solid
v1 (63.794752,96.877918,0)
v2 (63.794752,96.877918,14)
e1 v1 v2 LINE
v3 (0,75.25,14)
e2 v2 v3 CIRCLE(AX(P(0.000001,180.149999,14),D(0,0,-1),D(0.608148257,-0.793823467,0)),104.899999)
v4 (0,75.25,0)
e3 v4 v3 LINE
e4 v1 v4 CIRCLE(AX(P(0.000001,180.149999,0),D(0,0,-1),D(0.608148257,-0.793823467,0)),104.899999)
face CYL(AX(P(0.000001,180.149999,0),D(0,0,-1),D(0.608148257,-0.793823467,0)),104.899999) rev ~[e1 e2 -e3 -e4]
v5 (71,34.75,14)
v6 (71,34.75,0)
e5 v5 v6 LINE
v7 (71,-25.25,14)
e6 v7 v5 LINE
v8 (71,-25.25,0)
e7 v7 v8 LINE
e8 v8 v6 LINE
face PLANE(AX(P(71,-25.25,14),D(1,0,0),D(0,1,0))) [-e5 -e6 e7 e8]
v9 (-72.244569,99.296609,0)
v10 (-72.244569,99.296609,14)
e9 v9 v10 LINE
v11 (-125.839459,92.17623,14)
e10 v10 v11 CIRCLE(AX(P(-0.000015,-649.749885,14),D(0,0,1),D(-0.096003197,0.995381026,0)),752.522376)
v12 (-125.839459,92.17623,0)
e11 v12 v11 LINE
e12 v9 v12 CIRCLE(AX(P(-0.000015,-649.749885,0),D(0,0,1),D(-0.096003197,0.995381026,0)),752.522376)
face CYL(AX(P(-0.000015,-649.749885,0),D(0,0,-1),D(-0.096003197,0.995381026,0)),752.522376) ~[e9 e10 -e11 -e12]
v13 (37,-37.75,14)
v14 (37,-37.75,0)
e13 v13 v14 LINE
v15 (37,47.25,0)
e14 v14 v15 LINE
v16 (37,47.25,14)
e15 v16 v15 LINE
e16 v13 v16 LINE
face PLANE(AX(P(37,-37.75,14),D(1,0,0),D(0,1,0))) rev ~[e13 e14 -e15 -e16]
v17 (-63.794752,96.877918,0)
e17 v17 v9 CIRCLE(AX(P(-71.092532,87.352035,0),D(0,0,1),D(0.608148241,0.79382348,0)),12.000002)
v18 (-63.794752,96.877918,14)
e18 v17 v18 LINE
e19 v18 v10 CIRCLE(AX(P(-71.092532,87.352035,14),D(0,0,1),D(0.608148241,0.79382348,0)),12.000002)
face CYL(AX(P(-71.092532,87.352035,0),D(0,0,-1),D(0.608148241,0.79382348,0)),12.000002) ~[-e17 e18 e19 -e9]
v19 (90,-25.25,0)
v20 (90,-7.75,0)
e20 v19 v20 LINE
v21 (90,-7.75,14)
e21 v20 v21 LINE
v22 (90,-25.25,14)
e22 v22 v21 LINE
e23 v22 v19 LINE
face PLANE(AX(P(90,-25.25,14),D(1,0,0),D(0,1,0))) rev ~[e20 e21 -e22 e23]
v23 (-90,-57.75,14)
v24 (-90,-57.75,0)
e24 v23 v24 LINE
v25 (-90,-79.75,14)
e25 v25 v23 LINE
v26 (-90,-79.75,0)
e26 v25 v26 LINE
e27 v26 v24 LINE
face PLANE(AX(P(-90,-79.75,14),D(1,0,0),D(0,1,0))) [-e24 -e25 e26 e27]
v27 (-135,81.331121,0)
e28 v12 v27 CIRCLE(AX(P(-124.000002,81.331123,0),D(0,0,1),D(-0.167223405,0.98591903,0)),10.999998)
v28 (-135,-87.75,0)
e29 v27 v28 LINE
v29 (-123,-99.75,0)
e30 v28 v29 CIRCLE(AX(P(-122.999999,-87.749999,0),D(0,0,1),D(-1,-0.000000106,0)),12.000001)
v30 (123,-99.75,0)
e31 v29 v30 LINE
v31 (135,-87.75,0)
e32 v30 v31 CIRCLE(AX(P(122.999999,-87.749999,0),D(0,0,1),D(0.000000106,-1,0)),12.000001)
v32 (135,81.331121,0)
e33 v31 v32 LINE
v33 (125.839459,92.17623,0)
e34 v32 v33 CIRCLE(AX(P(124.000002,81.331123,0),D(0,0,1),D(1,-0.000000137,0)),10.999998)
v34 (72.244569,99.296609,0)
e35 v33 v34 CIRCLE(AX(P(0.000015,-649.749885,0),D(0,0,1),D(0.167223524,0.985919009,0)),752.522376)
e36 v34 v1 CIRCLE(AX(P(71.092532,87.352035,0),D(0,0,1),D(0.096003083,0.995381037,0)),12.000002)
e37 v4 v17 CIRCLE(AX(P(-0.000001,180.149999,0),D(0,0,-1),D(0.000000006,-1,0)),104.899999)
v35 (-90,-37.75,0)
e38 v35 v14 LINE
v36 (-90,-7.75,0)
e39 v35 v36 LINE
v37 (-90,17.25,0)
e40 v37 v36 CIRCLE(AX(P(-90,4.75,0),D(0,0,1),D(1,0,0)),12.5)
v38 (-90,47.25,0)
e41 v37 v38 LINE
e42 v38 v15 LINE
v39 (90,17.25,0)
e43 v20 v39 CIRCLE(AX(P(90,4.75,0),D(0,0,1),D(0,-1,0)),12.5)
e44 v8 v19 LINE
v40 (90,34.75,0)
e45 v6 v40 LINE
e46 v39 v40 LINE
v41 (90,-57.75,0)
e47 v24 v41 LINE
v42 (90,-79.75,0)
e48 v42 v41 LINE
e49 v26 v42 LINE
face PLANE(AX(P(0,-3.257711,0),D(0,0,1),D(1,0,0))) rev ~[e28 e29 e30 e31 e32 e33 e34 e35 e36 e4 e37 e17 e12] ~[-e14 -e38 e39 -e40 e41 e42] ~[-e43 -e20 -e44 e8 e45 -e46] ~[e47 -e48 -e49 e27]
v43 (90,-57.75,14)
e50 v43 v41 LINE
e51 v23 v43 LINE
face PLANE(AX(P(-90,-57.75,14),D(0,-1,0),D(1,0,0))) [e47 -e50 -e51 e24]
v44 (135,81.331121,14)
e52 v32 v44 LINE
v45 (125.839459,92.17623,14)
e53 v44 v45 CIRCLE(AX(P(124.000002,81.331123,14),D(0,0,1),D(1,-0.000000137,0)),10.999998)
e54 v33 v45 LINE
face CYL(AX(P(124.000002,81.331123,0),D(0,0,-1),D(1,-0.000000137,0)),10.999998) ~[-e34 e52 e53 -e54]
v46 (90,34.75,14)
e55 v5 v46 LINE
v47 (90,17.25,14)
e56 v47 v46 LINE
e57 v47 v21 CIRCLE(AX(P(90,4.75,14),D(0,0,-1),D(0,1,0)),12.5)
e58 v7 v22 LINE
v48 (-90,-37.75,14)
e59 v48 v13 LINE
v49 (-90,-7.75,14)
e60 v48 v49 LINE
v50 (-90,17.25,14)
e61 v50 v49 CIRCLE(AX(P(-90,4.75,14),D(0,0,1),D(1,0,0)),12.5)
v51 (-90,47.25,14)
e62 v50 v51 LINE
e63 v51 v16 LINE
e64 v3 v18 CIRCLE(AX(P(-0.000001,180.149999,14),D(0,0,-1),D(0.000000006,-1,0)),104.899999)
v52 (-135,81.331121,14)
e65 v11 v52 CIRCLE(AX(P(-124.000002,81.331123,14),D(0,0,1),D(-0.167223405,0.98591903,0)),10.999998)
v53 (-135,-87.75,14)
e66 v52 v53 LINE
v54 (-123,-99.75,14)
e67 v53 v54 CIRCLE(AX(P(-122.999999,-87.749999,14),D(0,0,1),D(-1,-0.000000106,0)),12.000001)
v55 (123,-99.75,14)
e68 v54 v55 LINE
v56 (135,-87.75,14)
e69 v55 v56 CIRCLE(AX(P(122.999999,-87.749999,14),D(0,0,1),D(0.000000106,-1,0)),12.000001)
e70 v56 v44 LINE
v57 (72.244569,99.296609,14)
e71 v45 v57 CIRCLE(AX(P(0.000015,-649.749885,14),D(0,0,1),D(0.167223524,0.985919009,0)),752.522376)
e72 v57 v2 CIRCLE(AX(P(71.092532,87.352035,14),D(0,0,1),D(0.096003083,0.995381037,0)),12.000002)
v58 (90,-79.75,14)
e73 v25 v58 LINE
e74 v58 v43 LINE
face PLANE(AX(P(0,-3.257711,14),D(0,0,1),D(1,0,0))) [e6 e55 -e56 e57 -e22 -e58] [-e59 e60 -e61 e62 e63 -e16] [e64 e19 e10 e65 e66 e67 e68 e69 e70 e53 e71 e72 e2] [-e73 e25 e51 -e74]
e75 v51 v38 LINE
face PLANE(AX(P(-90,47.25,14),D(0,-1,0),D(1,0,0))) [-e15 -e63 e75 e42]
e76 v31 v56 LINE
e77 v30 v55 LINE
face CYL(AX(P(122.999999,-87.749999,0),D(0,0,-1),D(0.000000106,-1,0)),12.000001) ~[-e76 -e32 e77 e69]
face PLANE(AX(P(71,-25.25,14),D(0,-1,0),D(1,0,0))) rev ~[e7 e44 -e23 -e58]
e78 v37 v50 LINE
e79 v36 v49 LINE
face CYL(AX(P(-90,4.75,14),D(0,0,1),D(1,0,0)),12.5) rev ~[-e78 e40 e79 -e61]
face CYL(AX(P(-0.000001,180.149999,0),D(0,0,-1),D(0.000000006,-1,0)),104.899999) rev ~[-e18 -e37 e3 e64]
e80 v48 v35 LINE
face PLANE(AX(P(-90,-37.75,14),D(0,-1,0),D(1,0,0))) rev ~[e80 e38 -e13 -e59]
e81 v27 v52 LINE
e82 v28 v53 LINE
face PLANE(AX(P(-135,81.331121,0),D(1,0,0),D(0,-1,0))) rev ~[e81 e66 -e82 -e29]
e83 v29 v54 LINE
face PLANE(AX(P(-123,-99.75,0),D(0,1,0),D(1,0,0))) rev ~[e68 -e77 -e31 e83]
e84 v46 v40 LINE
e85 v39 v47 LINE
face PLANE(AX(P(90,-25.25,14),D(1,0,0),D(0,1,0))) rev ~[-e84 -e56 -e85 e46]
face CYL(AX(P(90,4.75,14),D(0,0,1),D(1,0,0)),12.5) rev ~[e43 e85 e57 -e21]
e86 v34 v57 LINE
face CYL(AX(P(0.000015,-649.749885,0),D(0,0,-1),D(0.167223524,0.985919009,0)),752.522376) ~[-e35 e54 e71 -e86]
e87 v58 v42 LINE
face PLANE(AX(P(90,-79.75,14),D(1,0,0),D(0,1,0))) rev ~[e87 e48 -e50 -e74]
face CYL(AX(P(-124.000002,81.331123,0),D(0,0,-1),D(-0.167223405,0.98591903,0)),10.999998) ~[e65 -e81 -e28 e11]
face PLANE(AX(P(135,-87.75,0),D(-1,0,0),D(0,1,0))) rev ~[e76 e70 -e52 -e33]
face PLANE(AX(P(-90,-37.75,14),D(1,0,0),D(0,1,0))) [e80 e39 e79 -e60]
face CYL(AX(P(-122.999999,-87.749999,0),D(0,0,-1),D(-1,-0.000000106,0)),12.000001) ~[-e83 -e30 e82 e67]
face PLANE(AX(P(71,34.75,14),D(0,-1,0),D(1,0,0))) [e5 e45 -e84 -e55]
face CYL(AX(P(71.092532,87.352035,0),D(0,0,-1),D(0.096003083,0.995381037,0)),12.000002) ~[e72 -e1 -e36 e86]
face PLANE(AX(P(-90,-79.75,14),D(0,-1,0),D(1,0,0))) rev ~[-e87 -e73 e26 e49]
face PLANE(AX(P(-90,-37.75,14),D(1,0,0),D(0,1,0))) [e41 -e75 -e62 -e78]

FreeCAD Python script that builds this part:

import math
import FreeCAD as App
import Part
import Sketcher
from FreeCAD import Vector


def add_polygon(sketch, points):
    """Adds a closed chain of lines whose ends are joined by coincident constraints."""
    first, n = sketch.GeometryCount, len(points)
    for a, b in zip(points, points[1:] + points[:1]):
        sketch.addGeometry(Part.LineSegment(App.Vector(*a, 0), App.Vector(*b, 0)), False)
    for i in range(n):
        sketch.addConstraint(Sketcher.Constraint("Coincident", first + i, 2, first + (i + 1) % n, 1))

doc = App.newDocument("Part")
body = doc.addObject("PartDesign::Body", "Body")

sketch1 = body.newObject("Sketcher::SketchObject", "Sketch")
sketch1.AttachmentSupport = (doc.getObject("XY_Plane"), [""])
sketch1.MapMode = "FlatFace"
sketch1.addGeometry([
    Part.ArcOfCircle(Part.Circle(Vector(-123, -88, 0), Vector(0, 0, 1), 12), math.radians(-180), math.radians(-90)),
    Part.LineSegment(Vector(-123, -100, 0), Vector(123, -100, 0)),
    Part.ArcOfCircle(Part.Circle(Vector(123, -88, 0), Vector(0, 0, 1), 12), math.radians(-90), math.radians(0)),
    Part.LineSegment(Vector(135, -88, 0), Vector(135, 81, 0)),
    Part.ArcOfCircle(Part.Circle(Vector(124, 81, 0), Vector(0, 0, 1), 11), math.radians(0), math.radians(80)),
    Part.ArcOfCircle(Part.Circle(Vector(0, -650, 0), Vector(0, 0, 1), 753), math.radians(80.37), math.radians(84.49)),
    Part.ArcOfCircle(Part.Circle(Vector(71, 87, 0), Vector(0, 0, 1), 12), math.radians(84), math.radians(127)),
    Part.ArcOfCircle(Part.Circle(Vector(0, 180, 0), Vector(0, 0, 1), 105), math.radians(-90), math.radians(-53)),
    Part.ArcOfCircle(Part.Circle(Vector(0, 180, 0), Vector(0, 0, 1), 105), math.radians(-127), math.radians(-90)),
    Part.ArcOfCircle(Part.Circle(Vector(-71, 87, 0), Vector(0, 0, 1), 12), math.radians(53), math.radians(96)),
    Part.ArcOfCircle(Part.Circle(Vector(0, -650, 0), Vector(0, 0, 1), 753), math.radians(95.51), math.radians(99.63)),
    Part.ArcOfCircle(Part.Circle(Vector(-124, 81, 0), Vector(0, 0, 1), 11), math.radians(100), math.radians(180)),
    Part.LineSegment(Vector(-135, 81, 0), Vector(-135, -88, 0)),
], False)
sketch1.addConstraint([
    Sketcher.Constraint("Tangent", 0, 2, 1, 1),
    Sketcher.Constraint("Tangent", 1, 2, 2, 1),
    Sketcher.Constraint("Tangent", 2, 2, 3, 1),
    Sketcher.Constraint("Tangent", 3, 2, 4, 1),
    Sketcher.Constraint("Tangent", 4, 2, 5, 1),
    Sketcher.Constraint("Tangent", 5, 2, 6, 1),
    Sketcher.Constraint("Tangent", 6, 2, 7, 2),
    Sketcher.Constraint("Tangent", 7, 1, 8, 2),
    Sketcher.Constraint("Tangent", 8, 1, 9, 1),
    Sketcher.Constraint("Tangent", 9, 2, 10, 1),
    Sketcher.Constraint("Tangent", 10, 2, 11, 1),
    Sketcher.Constraint("Tangent", 11, 2, 12, 1),
    Sketcher.Constraint("Tangent", 12, 2, 0, 1),
    Sketcher.Constraint("Horizontal", 1),
    Sketcher.Constraint("Vertical", 3),
    Sketcher.Constraint("Vertical", 12),
    Sketcher.Constraint("Equal", 0, 2),
    Sketcher.Constraint("Equal", 2, 6),
    Sketcher.Constraint("Equal", 7, 8),
    Sketcher.Constraint("Equal", 6, 9),
    Sketcher.Constraint("Equal", 5, 10),
    Sketcher.Constraint("Equal", 4, 11),
    Sketcher.Constraint("Symmetric", 6, 3, 9, 3, -2),
    Sketcher.Constraint("Symmetric", 4, 3, 11, 3, -2),
    Sketcher.Constraint("PointOnObject", 7, 1, -2),
    Sketcher.Constraint("Radius", 0, 12.000001),
    Sketcher.Constraint("Radius", 4, 10.999998),
    Sketcher.Constraint("Radius", 7, 104.899999),
    Sketcher.Constraint("DistanceX", 1, 1, 1, 2, 246.0),
    Sketcher.Constraint("DistanceY", 0, 3, -1, 1, 87.749999),
    Sketcher.Constraint("DistanceY", -1, 1, 7, 3, 180.149999),
    Sketcher.Constraint("Radius", 5, 752.522376),
    Sketcher.Constraint("DistanceY", 3, 1, 3, 2, 169.081121),
    Sketcher.Constraint("DistanceX", -1, 1, 6, 3, 71.092532),
])
pad1 = body.newObject("PartDesign::Pad", "Pad")
pad1.Profile = sketch1
pad1.Length = 14

sketch2 = body.newObject("Sketcher::SketchObject", "Sketch001")
sketch2.AttachmentSupport = (doc.getObject("XY_Plane"), [""])
sketch2.MapMode = "FlatFace"
sketch2.AttachmentOffset = App.Placement(Vector(0, 0, 14), App.Rotation())
add_polygon(sketch2, [(-90, 47), (-90, -38), (37, -38), (37, 47)])
add_polygon(sketch2, [(-90, -58), (-90, -80), (90, -80), (90, -58)])
add_polygon(sketch2, [(71, 35), (71, -25), (90, -25), (90, 35)])
sketch2.addConstraint([
    Sketcher.Constraint("Vertical", 0),
    Sketcher.Constraint("Horizontal", 1),
    Sketcher.Constraint("Vertical", 2),
    Sketcher.Constraint("Horizontal", 3),
    Sketcher.Constraint("Vertical", 4),
    Sketcher.Constraint("Horizontal", 5),
    Sketcher.Constraint("Vertical", 6),
    Sketcher.Constraint("Horizontal", 7),
    Sketcher.Constraint("Vertical", 8),
    Sketcher.Constraint("Horizontal", 9),
    Sketcher.Constraint("Vertical", 10),
    Sketcher.Constraint("Horizontal", 11),
    Sketcher.Constraint("Vertical", 3, 2, 4, 2),
    Sketcher.Constraint("Vertical", 6, 2, 9, 2),
    Sketcher.Constraint("DistanceX", 1, 1, 1, 2, 127.0),
    Sketcher.Constraint("DistanceX", 5, 1, 5, 2, 180.0),
    Sketcher.Constraint("DistanceX", 9, 1, 9, 2, 19.0),
    Sketcher.Constraint("DistanceY", 0, 2, 0, 1, 85.0),
    Sketcher.Constraint("DistanceY", 4, 2, 4, 1, 22.0),
    Sketcher.Constraint("DistanceY", 8, 2, 8, 1, 60.0),
    Sketcher.Constraint("DistanceX", 0, 2, -1, 1, 90.0),
    Sketcher.Constraint("DistanceY", 4, 2, 0, 2, 42.0),
    Sketcher.Constraint("DistanceY", 1, 2, 8, 2, 12.5),
    Sketcher.Constraint("DistanceY", 0, 2, -1, 1, 37.75),
])
pocket1 = body.newObject("PartDesign::Pocket", "Pocket")
pocket1.Profile = sketch2
pocket1.Length = 25

sketch3 = body.newObject("Sketcher::SketchObject", "Sketch002")
sketch3.AttachmentSupport = (doc.getObject("XY_Plane"), [""])
sketch3.MapMode = "FlatFace"
sketch3.AttachmentOffset = App.Placement(Vector(0, 0, 14), App.Rotation())
sketch3.addGeometry([
    Part.Circle(Vector(-90, 5, 0), Vector(0, 0, 1), 12),
    Part.Circle(Vector(90, 5, 0), Vector(0, 0, 1), 12),
], False)
sketch3.addConstraint([
    Sketcher.Constraint("Equal", 0, 1),
    Sketcher.Constraint("Symmetric", 0, 3, 1, 3, -2),
    Sketcher.Constraint("Diameter", 0, 25.0),
    Sketcher.Constraint("DistanceX", 0, 3, -1, 1, 90.0),
    Sketcher.Constraint("DistanceY", -1, 1, 0, 3, 4.75),
])
pocket2 = body.newObject("PartDesign::Pocket", "Pocket001")
pocket2.Profile = sketch3
pocket2.Length = 25

doc.recompute()
